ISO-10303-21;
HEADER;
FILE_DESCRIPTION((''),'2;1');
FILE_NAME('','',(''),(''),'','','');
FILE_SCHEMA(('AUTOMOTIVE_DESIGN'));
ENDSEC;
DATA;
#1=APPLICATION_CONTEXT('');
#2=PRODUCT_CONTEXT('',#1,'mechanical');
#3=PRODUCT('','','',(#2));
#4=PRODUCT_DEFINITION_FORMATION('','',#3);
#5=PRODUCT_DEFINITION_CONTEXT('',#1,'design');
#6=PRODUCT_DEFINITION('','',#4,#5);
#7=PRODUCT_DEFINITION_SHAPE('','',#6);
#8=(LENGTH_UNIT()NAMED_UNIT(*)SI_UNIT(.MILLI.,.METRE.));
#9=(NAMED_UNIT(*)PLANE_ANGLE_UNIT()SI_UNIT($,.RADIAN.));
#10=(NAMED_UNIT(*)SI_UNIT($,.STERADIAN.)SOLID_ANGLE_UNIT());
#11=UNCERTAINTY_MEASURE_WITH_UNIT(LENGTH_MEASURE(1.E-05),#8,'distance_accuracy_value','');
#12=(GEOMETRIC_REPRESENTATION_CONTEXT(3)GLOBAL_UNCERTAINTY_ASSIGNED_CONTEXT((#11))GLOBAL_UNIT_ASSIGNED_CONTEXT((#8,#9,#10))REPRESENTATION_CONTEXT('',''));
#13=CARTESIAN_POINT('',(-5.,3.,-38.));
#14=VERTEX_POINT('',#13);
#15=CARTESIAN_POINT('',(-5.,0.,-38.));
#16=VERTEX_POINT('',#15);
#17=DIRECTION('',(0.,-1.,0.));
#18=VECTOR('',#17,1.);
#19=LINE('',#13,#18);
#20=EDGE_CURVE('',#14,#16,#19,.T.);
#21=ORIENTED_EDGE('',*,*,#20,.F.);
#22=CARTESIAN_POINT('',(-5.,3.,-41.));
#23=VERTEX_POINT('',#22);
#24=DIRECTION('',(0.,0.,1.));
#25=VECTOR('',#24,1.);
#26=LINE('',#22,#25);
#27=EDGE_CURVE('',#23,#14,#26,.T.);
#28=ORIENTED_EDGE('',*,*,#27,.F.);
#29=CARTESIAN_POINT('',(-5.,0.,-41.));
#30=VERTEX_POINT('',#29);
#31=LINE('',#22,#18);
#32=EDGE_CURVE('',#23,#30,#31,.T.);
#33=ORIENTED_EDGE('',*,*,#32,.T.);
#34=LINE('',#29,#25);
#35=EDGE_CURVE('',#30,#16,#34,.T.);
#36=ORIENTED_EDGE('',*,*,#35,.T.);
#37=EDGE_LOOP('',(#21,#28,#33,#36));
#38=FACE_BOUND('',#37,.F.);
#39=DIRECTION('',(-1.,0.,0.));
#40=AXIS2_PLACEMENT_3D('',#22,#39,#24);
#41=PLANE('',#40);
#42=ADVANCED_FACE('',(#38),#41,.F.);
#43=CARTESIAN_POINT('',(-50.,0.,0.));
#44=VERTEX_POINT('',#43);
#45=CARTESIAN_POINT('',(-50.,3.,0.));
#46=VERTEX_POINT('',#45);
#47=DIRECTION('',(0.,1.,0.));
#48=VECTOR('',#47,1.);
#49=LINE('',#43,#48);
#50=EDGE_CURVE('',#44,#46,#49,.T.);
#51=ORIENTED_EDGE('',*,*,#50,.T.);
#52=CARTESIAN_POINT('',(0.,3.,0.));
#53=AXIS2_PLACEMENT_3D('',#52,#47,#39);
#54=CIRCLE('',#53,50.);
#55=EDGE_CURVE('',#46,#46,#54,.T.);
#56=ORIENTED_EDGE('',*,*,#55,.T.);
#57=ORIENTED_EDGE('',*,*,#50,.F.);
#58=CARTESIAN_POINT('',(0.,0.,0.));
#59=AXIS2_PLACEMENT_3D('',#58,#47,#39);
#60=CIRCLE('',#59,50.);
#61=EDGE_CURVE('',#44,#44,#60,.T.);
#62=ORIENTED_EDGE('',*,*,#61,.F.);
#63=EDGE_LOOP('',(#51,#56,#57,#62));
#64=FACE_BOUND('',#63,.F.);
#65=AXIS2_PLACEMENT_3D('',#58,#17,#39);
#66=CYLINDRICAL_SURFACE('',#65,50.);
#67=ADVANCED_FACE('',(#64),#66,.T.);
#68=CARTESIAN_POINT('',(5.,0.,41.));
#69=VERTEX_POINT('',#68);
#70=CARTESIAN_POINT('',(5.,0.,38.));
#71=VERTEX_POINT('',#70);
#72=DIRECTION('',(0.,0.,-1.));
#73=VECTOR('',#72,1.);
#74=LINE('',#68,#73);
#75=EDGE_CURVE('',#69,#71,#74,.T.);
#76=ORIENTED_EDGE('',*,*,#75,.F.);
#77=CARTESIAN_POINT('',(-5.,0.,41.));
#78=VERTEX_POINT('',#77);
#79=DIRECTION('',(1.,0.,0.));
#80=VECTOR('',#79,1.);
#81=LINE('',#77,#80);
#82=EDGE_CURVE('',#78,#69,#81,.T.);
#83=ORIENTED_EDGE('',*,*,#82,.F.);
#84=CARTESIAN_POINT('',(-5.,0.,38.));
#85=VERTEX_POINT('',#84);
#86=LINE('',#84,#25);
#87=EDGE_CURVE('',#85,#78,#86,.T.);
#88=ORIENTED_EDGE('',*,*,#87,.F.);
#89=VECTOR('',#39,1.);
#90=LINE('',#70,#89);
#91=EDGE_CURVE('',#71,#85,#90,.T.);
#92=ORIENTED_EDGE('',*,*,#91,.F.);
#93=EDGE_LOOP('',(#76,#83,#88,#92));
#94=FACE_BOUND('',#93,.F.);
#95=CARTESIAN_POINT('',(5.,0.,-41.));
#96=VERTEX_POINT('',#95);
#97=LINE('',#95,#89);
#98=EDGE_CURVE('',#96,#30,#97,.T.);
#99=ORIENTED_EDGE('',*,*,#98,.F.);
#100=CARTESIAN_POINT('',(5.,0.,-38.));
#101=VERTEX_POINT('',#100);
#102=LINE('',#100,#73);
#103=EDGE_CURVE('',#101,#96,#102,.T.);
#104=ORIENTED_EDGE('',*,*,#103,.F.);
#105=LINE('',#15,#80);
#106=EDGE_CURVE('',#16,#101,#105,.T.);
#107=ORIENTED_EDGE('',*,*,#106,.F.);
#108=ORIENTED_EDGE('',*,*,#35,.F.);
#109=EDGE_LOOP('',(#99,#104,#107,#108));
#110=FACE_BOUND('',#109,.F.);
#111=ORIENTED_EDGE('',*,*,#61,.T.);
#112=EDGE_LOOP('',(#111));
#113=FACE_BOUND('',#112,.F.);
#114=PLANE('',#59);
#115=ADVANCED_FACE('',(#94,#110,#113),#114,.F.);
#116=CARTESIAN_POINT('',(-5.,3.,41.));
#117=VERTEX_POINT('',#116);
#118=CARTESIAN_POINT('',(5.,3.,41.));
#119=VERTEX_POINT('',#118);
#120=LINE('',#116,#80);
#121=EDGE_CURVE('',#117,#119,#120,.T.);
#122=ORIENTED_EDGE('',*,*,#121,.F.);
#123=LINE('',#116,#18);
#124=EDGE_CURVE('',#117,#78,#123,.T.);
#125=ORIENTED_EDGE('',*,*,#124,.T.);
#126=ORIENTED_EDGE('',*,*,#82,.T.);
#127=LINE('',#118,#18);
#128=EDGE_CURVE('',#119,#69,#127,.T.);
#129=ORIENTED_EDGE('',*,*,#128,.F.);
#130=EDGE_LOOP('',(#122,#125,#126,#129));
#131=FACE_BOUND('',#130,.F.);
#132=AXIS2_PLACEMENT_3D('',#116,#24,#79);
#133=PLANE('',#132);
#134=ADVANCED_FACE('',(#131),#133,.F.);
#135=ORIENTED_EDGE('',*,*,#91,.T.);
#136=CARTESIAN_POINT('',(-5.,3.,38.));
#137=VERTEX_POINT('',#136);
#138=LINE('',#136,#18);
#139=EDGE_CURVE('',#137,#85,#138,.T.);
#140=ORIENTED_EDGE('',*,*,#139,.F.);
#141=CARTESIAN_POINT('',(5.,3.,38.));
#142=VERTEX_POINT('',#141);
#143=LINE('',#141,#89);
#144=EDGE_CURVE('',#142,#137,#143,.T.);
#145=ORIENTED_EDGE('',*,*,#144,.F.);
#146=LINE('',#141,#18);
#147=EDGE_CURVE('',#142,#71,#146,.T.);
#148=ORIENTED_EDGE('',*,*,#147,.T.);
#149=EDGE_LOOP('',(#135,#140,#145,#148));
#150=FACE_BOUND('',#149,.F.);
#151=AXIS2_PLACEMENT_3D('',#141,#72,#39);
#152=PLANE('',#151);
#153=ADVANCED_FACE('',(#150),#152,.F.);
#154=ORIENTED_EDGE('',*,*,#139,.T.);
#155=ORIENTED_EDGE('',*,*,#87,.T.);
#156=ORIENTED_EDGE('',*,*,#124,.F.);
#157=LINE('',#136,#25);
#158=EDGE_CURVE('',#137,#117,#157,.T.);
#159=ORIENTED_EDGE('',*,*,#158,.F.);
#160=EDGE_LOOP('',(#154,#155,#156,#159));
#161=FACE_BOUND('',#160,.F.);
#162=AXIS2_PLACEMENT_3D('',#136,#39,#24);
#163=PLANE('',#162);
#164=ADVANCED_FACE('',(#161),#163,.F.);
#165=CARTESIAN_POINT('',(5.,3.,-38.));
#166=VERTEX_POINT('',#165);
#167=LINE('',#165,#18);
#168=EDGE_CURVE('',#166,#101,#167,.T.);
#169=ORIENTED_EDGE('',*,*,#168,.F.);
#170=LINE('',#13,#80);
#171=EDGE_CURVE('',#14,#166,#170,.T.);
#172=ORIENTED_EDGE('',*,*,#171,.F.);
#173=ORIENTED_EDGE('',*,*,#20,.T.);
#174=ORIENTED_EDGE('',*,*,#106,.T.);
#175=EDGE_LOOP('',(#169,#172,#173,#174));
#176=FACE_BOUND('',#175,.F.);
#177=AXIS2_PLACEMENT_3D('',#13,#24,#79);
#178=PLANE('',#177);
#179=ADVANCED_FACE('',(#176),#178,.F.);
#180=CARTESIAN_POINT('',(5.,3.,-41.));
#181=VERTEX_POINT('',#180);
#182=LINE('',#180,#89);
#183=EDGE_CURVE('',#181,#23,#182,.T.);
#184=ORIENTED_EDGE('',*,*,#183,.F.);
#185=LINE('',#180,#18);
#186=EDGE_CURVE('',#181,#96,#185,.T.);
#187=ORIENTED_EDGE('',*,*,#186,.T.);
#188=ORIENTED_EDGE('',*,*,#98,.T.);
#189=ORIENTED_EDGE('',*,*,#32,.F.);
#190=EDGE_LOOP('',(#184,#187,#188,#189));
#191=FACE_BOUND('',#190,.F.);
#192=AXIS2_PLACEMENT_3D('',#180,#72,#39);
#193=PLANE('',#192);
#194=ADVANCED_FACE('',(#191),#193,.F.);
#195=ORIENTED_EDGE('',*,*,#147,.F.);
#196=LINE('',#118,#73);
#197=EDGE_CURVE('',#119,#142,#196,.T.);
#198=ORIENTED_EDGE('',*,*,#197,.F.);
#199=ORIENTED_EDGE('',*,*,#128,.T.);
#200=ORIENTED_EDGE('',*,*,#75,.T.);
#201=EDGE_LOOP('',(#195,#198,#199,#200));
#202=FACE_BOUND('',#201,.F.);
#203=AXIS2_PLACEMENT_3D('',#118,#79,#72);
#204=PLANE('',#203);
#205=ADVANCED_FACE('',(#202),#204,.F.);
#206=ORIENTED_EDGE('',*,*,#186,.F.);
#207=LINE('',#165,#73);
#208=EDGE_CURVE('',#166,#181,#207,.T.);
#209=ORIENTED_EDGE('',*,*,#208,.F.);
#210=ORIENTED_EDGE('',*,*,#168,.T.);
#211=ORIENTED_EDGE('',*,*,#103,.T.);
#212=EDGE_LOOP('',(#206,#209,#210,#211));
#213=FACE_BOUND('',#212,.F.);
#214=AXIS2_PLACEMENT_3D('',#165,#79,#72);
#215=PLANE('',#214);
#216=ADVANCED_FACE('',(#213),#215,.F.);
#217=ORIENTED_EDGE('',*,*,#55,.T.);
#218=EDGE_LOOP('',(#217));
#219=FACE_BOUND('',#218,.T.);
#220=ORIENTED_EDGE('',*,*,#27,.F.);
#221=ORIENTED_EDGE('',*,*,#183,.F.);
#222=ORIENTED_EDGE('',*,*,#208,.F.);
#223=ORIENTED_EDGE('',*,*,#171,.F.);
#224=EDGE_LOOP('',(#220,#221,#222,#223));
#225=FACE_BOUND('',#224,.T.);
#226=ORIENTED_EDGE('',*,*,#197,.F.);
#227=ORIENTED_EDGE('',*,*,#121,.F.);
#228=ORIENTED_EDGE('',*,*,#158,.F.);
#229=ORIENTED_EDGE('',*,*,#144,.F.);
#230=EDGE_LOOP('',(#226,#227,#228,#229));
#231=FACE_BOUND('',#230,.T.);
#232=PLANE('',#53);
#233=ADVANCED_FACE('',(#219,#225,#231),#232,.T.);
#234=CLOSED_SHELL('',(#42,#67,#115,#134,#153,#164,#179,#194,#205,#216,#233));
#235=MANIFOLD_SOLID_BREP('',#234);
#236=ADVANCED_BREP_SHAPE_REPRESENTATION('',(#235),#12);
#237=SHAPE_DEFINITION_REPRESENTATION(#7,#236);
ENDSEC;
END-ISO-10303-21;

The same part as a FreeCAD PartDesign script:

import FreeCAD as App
import Part
import Sketcher
Q = App.Units.Quantity

doc = App.newDocument("Part")
params = doc.addObject("Spreadsheet::Sheet", "Params")
for row, (alias, value) in enumerate([
    ("sketch1_diameter", "3.937 in"),
    ("pad1_length", "0.1181102 in"),
    ("pocket1_length", "0.1181102 in"),
], start=1):
    params.set(f"A{row}", alias)
    params.set(f"B{row}", "=" + value)
    params.setAlias(f"B{row}", alias)

body = doc.addObject("PartDesign::Body", "Body")

sketch1 = body.newObject("Sketcher::SketchObject", "Sketch")
sketch1.AttachmentSupport = (doc.getObject("XZ_Plane"), [""])
sketch1.MapMode = "FlatFace"
sketch1.addGeometry(Part.Circle(App.Vector(0, 0, 0), App.Vector(0, 0, 1), 50), False)
sketch1.addConstraint([
    Sketcher.Constraint("Coincident", 0, 3, -1, 1),
    Sketcher.Constraint("Diameter", 0, Q("3.937 in")),
])
sketch1.setExpression("Constraints[1]", "Params.sketch1_diameter")
pad1 = body.newObject("PartDesign::Pad", "Pad")
pad1.Profile = sketch1
pad1.setExpression("Length", "Params.pad1_length")
pad1.Reversed = True

sketch2 = body.newObject("Sketcher::SketchObject", "Sketch001")
sketch2.AttachmentSupport = (doc.getObject("XZ_Plane"), [""])
sketch2.MapMode = "FlatFace"
sketch2.AttachmentOffset = App.Placement(App.Vector(0, 0, -0.1181102 * 25.4), App.Rotation())
sketch2.addGeometry([
    Part.LineSegment(App.Vector(-5, 38, 0), App.Vector(-5, 41, 0)),
    Part.LineSegment(App.Vector(-5, 41, 0), App.Vector(5, 41, 0)),
    Part.LineSegment(App.Vector(5, 41, 0), App.Vector(5, 38, 0)),
    Part.LineSegment(App.Vector(5, 38, 0), App.Vector(-5, 38, 0)),
    Part.LineSegment(App.Vector(-5, -41, 0), App.Vector(-5, -38, 0)),
    Part.LineSegment(App.Vector(-5, -38, 0), App.Vector(5, -38, 0)),
    Part.LineSegment(App.Vector(5, -38, 0), App.Vector(5, -41, 0)),
    Part.LineSegment(App.Vector(5, -41, 0), App.Vector(-5, -41, 0)),
], False)
sketch2.addConstraint([
    Sketcher.Constraint("Coincident", 0, 2, 1, 1),
    Sketcher.Constraint("Coincident", 1, 2, 2, 1),
    Sketcher.Constraint("Coincident", 2, 2, 3, 1),
    Sketcher.Constraint("Coincident", 3, 2, 0, 1),
    Sketcher.Constraint("Coincident", 4, 2, 5, 1),
    Sketcher.Constraint("Coincident", 5, 2, 6, 1),
    Sketcher.Constraint("Coincident", 6, 2, 7, 1),
    Sketcher.Constraint("Coincident", 7, 2, 4, 1),
    Sketcher.Constraint("Vertical", 0),
    Sketcher.Constraint("Horizontal", 1),
    Sketcher.Constraint("Vertical", 2),
    Sketcher.Constraint("Horizontal", 3),
    Sketcher.Constraint("Vertical", 4),
    Sketcher.Constraint("Horizontal", 5),
    Sketcher.Constraint("Vertical", 6),
    Sketcher.Constraint("Horizontal", 7),
    Sketcher.Constraint("Symmetric", 2, 2, 4, 2, -1, 1),
    Sketcher.Constraint("Symmetric", 0, 2, 6, 2, -1, 1),
    Sketcher.Constraint("Vertical", 3, 2, 4, 2),
    Sketcher.Constraint("DistanceX", 1, 1, 1, 2, Q("0.3937 in")),
    Sketcher.Constraint("DistanceY", 0, 1, 0, 2, Q("0.1181 in")),
    Sketcher.Constraint("DistanceY", -1, 1, 2, 2, Q("38 mm")),
])
pocket1 = body.newObject("PartDesign::Pocket", "Pocket")
pocket1.Profile = sketch2
pocket1.setExpression("Length", "Params.pocket1_length")
pocket1.Reversed = True

doc.recompute()
